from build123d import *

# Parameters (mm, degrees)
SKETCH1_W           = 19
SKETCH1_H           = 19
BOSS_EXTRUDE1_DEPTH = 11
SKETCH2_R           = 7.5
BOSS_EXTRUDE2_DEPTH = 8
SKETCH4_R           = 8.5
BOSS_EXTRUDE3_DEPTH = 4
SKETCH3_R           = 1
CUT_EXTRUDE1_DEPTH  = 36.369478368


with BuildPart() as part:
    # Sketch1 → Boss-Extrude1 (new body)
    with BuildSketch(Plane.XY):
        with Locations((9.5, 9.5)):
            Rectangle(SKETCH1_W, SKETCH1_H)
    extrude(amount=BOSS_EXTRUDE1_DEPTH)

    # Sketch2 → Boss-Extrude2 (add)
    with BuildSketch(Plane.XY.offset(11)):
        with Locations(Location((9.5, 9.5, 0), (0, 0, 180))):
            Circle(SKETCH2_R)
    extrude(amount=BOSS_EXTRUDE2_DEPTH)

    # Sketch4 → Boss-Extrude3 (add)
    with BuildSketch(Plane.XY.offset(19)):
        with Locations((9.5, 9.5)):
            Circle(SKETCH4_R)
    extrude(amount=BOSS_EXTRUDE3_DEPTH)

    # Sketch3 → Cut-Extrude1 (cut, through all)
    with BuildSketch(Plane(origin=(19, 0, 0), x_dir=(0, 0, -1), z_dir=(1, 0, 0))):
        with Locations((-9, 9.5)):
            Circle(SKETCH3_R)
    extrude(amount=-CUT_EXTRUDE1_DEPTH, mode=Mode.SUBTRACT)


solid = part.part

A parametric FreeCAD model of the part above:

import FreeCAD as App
import Part
import Sketcher


def add_polygon(sketch, points):
    """Adds a closed chain of lines whose ends are joined by coincident constraints."""
    first, n = sketch.GeometryCount, len(points)
    for a, b in zip(points, points[1:] + points[:1]):
        sketch.addGeometry(Part.LineSegment(App.Vector(*a, 0), App.Vector(*b, 0)), False)
    for i in range(n):
        sketch.addConstraint(Sketcher.Constraint("Coincident", first + i, 2, first + (i + 1) % n, 1))

doc = App.newDocument("Part")
body = doc.addObject("PartDesign::Body", "Body")

# Sketch on XY plane
sketch1 = body.newObject("Sketcher::SketchObject", "Sketch")
sketch1.AttachmentSupport = (doc.getObject("XY_Plane"), [""])
sketch1.MapMode = "FlatFace"
add_polygon(sketch1, [(0, 19), (0, 0), (19, 0), (19, 19)])  # lines 0-3
sketch1.addConstraint([
    Sketcher.Constraint("Vertical", 0),
    Sketcher.Constraint("Horizontal", 1),
    Sketcher.Constraint("Vertical", 2),
    Sketcher.Constraint("Horizontal", 3),
    Sketcher.Constraint("Coincident", 0, 2, -1, 1),
    Sketcher.Constraint("Equal", 3, 0),
    Sketcher.Constraint("DistanceX", 1, 1, 1, 2, 19.0),
])
pad1 = body.newObject("PartDesign::Pad", "Pad")
pad1.Profile = sketch1
pad1.Length = 11

# Sketch on XY plane
sketch2 = body.newObject("Sketcher::SketchObject", "Sketch001")
sketch2.AttachmentSupport = (doc.getObject("XY_Plane"), [""])
sketch2.MapMode = "FlatFace"
sketch2.AttachmentOffset = App.Placement(App.Vector(0, 0, 11), App.Rotation())
sketch2.addGeometry(Part.Circle(App.Vector(10, 10, 0), App.Vector(0, 0, 1), 8), False)
sketch2.addConstraint([
    Sketcher.Constraint("Diameter", 0, 15.0),
    Sketcher.Constraint("DistanceX", -1, 1, 0, 3, 9.5),
    Sketcher.Constraint("DistanceY", -1, 1, 0, 3, 9.5),
])
pad2 = body.newObject("PartDesign::Pad", "Pad001")
pad2.Profile = sketch2
pad2.Length = 8

# Sketch on XY plane
sketch3 = body.newObject("Sketcher::SketchObject", "Sketch002")
sketch3.AttachmentSupport = (doc.getObject("XY_Plane"), [""])
sketch3.MapMode = "FlatFace"
sketch3.AttachmentOffset = App.Placement(App.Vector(0, 0, 19), App.Rotation())
sketch3.addGeometry(Part.Circle(App.Vector(10, 10, 0), App.Vector(0, 0, 1), 8), False)
sketch3.addConstraint([
    Sketcher.Constraint("Diameter", 0, 17.0),
    Sketcher.Constraint("DistanceX", -1, 1, 0, 3, 9.5),
    Sketcher.Constraint("DistanceY", -1, 1, 0, 3, 9.5),
])
pad3 = body.newObject("PartDesign::Pad", "Pad002")
pad3.Profile = sketch3
pad3.Length = 4

# Sketch on YZ plane
sketch4 = body.newObject("Sketcher::SketchObject", "Sketch003")
sketch4.AttachmentSupport = (doc.getObject("YZ_Plane"), [""])
sketch4.MapMode = "FlatFace"
sketch4.AttachmentOffset = App.Placement(App.Vector(0, 0, 19), App.Rotation())
sketch4.addGeometry(Part.Circle(App.Vector(9.5, 9, 0), App.Vector(0, 0, 1), 1), False)
sketch4.addConstraint([
    Sketcher.Constraint("Diameter", 0, 2.0),
    Sketcher.Constraint("DistanceY", -1, 1, 0, 3, 9.0),
    Sketcher.Constraint("DistanceX", -1, 1, 0, 3, 9.5),
])
pocket1 = body.newObject("PartDesign::Pocket", "Pocket")
pocket1.Profile = sketch4
pocket1.Type = "ThroughAll"

doc.recompute()
